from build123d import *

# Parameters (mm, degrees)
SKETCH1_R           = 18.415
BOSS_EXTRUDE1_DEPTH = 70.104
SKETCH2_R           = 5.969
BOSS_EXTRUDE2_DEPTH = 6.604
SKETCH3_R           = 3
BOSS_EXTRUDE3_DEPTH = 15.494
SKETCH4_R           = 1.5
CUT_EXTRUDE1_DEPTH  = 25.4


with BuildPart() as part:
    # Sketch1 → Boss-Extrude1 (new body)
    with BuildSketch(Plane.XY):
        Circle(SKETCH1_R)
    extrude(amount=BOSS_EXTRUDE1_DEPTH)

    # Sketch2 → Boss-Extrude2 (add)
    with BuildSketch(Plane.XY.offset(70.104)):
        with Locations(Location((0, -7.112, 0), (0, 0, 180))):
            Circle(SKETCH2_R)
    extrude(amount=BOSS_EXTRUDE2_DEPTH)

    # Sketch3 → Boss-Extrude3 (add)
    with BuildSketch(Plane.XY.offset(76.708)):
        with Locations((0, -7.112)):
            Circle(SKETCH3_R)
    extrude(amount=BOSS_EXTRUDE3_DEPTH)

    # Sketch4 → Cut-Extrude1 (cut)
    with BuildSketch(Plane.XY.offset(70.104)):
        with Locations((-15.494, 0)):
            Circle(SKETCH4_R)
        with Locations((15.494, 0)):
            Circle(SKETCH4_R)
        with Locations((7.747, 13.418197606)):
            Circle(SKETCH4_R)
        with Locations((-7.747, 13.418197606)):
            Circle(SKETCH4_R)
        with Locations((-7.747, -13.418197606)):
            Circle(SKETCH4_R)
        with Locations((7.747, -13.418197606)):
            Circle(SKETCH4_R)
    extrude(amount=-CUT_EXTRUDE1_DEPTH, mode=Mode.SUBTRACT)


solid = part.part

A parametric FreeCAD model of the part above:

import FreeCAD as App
import Part
import Sketcher
Q = App.Units.Quantity

doc = App.newDocument("Part")
body = doc.addObject("PartDesign::Body", "Body")

# Sketch on XY plane
sketch1 = body.newObject("Sketcher::SketchObject", "Sketch")
sketch1.AttachmentSupport = (doc.getObject("XY_Plane"), [""])
sketch1.MapMode = "FlatFace"
sketch1.addGeometry(Part.Circle(App.Vector(0, 0, 0), App.Vector(0, 0, 1), 18), False)
sketch1.addConstraint([
    Sketcher.Constraint("Coincident", 0, 3, -1, 1),
    Sketcher.Constraint("Diameter", 0, Q("1.45 in")),
])
pad1 = body.newObject("PartDesign::Pad", "Pad")
pad1.Profile = sketch1
pad1.Length = Q("2.76 in")

# Sketch on XY plane
sketch2 = body.newObject("Sketcher::SketchObject", "Sketch001")
sketch2.AttachmentSupport = (doc.getObject("XY_Plane"), [""])
sketch2.MapMode = "FlatFace"
sketch2.AttachmentOffset = App.Placement(App.Vector(0, 0, 2.76 * 25.4), App.Rotation())
sketch2.addGeometry(Part.Circle(App.Vector(0, -7, 0), App.Vector(0, 0, 1), 6), False)
sketch2.addConstraint([
    Sketcher.Constraint("PointOnObject", 0, 3, -2),
    Sketcher.Constraint("Diameter", 0, Q("0.47 in")),
    Sketcher.Constraint("DistanceY", 0, 3, -1, 1, Q("0.28 in")),
])
pad2 = body.newObject("PartDesign::Pad", "Pad001")
pad2.Profile = sketch2
pad2.Length = Q("0.26 in")

# Sketch on XY plane
sketch3 = body.newObject("Sketcher::SketchObject", "Sketch002")
sketch3.AttachmentSupport = (doc.getObject("XY_Plane"), [""])
sketch3.MapMode = "FlatFace"
sketch3.AttachmentOffset = App.Placement(App.Vector(0, 0, 3.02 * 25.4), App.Rotation())
sketch3.addGeometry(Part.Circle(App.Vector(0, -7.1, 0), App.Vector(0, 0, 1), 3), False)
sketch3.addConstraint([
    Sketcher.Constraint("PointOnObject", 0, 3, -2),
    Sketcher.Constraint("Diameter", 0, 6.0),
    Sketcher.Constraint("DistanceY", 0, 3, -1, 1, Q("0.28 in")),
])
pad3 = body.newObject("PartDesign::Pad", "Pad002")
pad3.Profile = sketch3
pad3.Length = Q("0.61 in")

# Sketch on XY plane
sketch4 = body.newObject("Sketcher::SketchObject", "Sketch003")
sketch4.AttachmentSupport = (doc.getObject("XY_Plane"), [""])
sketch4.MapMode = "FlatFace"
sketch4.AttachmentOffset = App.Placement(App.Vector(0, 0, 2.76 * 25.4), App.Rotation())
sketch4.addGeometry([
    Part.Circle(App.Vector(-15.5, 0, 0), App.Vector(0, 0, 1), 1.5),  # 0
    Part.Circle(App.Vector(15.5, 0, 0), App.Vector(0, 0, 1), 1.5),  # 1
    Part.Circle(App.Vector(7.7, 13.4, 0), App.Vector(0, 0, 1), 1.5),  # 2
    Part.Circle(App.Vector(-7.7, 13.4, 0), App.Vector(0, 0, 1), 1.5),  # 3
    Part.Circle(App.Vector(-7.7, -13.4, 0), App.Vector(0, 0, 1), 1.5),  # 4
    Part.Circle(App.Vector(7.7, -13.4, 0), App.Vector(0, 0, 1), 1.5),  # 5
], False)
sketch4.addConstraint([
    Sketcher.Constraint("Equal", 0, 1),
    Sketcher.Constraint("Equal", 1, 2),
    Sketcher.Constraint("Equal", 2, 3),
    Sketcher.Constraint("Equal", 3, 4),
    Sketcher.Constraint("Equal", 4, 5),
    Sketcher.Constraint("Symmetric", 0, 3, 1, 3, -1, 1),
    Sketcher.Constraint("Symmetric", 2, 3, 4, 3, -1, 1),
    Sketcher.Constraint("Symmetric", 3, 3, 5, 3, -1, 1),
    Sketcher.Constraint("Symmetric", 2, 3, 3, 3, -2),
    Sketcher.Constraint("PointOnObject", 0, 3, -1),
    Sketcher.Constraint("Diameter", 0, 3.0),
    Sketcher.Constraint("DistanceX", 0, 3, -1, 1, Q("0.61 in")),
    Sketcher.Constraint("DistanceX", 3, 3, 2, 3, Q("0.61 in")),
    Sketcher.Constraint("DistanceY", -1, 1, 2, 3, 13.418198),
])
pocket1 = body.newObject("PartDesign::Pocket", "Pocket")
pocket1.Profile = sketch4
pocket1.Length = Q("1 in")

doc.recompute()
